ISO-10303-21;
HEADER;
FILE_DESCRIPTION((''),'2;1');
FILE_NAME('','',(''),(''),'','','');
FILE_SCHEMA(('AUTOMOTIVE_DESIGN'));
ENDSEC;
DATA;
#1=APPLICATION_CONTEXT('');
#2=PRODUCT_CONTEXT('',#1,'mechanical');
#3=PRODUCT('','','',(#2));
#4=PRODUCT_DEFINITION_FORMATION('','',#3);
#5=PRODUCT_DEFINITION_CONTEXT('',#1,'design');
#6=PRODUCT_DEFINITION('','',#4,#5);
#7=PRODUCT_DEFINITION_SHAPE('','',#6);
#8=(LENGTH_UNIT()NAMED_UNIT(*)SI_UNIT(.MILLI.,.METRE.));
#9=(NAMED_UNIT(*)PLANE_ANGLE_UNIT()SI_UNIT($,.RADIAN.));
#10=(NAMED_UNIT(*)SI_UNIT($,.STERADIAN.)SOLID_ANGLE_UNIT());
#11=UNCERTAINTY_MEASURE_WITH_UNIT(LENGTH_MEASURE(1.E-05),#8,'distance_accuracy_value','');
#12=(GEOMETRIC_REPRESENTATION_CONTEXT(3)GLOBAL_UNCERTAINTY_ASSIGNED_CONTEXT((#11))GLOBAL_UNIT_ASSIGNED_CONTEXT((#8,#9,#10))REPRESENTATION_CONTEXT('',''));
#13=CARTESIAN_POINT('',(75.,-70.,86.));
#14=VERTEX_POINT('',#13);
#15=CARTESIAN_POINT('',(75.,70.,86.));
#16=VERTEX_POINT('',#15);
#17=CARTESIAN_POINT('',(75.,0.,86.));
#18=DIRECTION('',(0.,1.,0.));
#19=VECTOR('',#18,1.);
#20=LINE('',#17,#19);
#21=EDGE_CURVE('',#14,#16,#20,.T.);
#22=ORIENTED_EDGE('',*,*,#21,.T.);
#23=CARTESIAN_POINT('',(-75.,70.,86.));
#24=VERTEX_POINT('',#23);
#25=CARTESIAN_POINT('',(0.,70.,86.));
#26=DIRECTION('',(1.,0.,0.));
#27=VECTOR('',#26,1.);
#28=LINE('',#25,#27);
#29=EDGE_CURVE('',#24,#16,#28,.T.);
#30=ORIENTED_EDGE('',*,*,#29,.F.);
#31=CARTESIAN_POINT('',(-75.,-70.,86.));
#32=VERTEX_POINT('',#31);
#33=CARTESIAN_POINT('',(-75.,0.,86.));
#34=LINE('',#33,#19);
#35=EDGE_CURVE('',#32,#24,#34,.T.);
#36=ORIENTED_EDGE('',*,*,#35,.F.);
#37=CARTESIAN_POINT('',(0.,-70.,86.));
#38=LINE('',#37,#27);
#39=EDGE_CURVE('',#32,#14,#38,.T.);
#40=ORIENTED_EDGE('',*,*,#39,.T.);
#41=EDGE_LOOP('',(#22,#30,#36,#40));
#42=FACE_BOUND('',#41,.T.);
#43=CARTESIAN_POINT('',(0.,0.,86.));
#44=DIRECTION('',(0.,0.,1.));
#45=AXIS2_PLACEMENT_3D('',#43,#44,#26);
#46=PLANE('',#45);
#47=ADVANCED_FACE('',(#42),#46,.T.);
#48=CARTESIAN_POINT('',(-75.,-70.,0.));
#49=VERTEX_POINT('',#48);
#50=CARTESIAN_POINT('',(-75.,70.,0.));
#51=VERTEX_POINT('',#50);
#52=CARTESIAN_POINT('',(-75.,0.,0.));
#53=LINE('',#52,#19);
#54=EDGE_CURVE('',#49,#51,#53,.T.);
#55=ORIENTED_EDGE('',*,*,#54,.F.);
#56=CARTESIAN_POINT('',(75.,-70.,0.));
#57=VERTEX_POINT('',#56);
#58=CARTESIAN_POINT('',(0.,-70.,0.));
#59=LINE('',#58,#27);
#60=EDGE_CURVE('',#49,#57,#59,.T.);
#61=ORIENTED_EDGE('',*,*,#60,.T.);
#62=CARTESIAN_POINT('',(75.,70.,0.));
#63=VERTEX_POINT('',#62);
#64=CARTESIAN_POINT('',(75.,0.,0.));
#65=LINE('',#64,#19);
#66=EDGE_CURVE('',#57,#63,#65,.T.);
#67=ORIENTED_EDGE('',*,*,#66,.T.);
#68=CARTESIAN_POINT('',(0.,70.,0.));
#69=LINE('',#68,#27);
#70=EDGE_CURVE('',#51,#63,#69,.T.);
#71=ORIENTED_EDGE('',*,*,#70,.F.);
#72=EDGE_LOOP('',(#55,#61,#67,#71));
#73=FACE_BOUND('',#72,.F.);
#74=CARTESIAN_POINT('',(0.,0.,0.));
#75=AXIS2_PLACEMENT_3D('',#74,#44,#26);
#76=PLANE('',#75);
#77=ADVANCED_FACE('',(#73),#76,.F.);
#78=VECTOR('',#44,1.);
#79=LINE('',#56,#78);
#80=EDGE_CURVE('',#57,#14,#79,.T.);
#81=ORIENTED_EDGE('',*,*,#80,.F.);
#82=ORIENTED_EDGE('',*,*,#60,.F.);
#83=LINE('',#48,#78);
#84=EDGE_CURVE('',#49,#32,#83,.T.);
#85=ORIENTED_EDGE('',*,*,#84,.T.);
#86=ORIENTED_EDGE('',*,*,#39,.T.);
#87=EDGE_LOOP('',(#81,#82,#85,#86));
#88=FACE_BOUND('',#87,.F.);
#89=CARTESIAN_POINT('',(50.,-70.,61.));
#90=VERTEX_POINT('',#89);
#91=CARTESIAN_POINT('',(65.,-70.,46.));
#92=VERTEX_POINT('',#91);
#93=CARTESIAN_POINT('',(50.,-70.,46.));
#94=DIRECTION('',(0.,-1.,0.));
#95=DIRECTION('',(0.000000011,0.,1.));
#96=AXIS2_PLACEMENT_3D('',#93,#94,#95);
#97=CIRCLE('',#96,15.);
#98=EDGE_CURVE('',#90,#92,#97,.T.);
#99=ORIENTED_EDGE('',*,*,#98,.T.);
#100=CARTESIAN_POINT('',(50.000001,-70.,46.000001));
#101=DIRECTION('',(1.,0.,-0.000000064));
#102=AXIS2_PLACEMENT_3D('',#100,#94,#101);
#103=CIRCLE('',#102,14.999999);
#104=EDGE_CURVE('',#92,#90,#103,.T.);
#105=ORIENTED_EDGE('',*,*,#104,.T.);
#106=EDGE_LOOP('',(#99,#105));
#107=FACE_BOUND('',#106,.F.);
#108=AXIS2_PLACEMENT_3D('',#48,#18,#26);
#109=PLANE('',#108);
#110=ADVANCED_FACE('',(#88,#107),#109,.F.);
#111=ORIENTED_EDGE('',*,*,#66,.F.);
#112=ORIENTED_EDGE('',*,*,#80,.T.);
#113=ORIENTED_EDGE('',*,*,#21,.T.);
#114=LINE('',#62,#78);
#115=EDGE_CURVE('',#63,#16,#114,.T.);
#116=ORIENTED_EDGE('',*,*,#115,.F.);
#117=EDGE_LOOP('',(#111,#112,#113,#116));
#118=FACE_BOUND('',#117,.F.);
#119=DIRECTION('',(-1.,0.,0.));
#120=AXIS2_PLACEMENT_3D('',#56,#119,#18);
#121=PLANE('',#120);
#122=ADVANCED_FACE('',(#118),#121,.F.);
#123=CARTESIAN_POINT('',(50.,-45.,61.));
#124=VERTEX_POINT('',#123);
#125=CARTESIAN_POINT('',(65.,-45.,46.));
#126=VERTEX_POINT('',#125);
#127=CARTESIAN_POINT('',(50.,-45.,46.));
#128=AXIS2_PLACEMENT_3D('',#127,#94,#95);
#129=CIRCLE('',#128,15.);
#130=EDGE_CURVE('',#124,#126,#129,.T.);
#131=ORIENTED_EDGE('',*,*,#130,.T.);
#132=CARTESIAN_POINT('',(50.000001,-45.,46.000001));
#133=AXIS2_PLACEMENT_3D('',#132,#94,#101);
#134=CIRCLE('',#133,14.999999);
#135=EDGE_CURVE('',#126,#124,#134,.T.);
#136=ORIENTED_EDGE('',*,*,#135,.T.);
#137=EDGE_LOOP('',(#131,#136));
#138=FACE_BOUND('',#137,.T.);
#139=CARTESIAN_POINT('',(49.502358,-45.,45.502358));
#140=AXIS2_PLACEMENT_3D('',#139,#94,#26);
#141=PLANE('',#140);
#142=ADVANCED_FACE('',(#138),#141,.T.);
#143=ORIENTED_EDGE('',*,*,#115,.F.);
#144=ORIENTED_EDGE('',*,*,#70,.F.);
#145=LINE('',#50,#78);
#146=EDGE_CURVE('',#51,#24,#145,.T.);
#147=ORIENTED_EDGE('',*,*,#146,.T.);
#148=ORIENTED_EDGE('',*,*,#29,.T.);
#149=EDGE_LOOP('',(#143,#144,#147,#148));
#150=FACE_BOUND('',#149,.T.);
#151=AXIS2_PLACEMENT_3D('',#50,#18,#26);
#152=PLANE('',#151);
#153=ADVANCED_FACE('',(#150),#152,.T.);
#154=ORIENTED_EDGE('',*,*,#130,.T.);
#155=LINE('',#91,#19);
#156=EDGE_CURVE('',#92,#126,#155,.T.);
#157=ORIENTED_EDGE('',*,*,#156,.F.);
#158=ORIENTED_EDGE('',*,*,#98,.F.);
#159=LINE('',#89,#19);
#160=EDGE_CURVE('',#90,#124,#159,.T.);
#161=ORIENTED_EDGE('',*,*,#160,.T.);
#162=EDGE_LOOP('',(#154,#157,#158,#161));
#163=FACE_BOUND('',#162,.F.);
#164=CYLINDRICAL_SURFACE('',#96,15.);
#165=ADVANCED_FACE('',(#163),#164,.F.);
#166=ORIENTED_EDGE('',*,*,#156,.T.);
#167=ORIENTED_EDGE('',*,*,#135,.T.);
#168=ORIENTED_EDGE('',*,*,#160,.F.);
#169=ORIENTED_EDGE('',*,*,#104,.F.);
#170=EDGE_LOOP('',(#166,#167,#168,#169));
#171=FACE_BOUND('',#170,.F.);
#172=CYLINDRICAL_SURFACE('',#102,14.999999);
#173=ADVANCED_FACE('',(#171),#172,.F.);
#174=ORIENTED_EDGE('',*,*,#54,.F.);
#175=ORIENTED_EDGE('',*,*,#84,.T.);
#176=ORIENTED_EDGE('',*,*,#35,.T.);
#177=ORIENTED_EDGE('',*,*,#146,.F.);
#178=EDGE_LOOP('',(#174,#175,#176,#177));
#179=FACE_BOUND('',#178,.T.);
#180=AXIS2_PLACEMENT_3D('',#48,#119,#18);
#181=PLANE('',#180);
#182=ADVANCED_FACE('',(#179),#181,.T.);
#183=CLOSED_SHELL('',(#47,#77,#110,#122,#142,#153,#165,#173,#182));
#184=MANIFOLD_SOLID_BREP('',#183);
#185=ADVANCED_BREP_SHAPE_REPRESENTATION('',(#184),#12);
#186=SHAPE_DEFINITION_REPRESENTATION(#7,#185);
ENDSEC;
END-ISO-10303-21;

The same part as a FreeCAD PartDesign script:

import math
import FreeCAD as App
import Part
import Sketcher
from FreeCAD import Vector
Q = App.Units.Quantity

doc = App.newDocument("Part")
params = doc.addObject("Spreadsheet::Sheet", "Params")
for row, (alias, value) in enumerate([
    ("sketch1_width", "150 mm"),
    ("sketch1_height", "140 mm"),
    ("pad1_length", "86 mm"),
    ("sketch2_radius", "15 mm"),
    ("pocket1_length", "25 mm"),
], start=1):
    params.set(f"A{row}", alias)
    params.set(f"B{row}", "=" + value)
    params.setAlias(f"B{row}", alias)

body = doc.addObject("PartDesign::Body", "Body")

# Sketch on XY plane
sketch1 = body.newObject("Sketcher::SketchObject", "Sketch")
sketch1.AttachmentSupport = (doc.getObject("XY_Plane"), [""])
sketch1.MapMode = "FlatFace"
sketch1.addGeometry([
    Part.LineSegment(Vector(-75, 70, 0), Vector(-75, -70, 0)),
    Part.LineSegment(Vector(-75, -70, 0), Vector(75, -70, 0)),
    Part.LineSegment(Vector(75, -70, 0), Vector(75, 70, 0)),
    Part.LineSegment(Vector(75, 70, 0), Vector(-75, 70, 0)),
], False)
sketch1.addConstraint([
    Sketcher.Constraint("Coincident", 0, 2, 1, 1),
    Sketcher.Constraint("Coincident", 1, 2, 2, 1),
    Sketcher.Constraint("Coincident", 2, 2, 3, 1),
    Sketcher.Constraint("Coincident", 3, 2, 0, 1),
    Sketcher.Constraint("Vertical", 0),
    Sketcher.Constraint("Horizontal", 1),
    Sketcher.Constraint("Vertical", 2),
    Sketcher.Constraint("Horizontal", 3),
    Sketcher.Constraint("Symmetric", 0, 2, 2, 2, -1, 1),
    Sketcher.Constraint("DistanceX", 1, 1, 1, 2, Q("150 mm")),
    Sketcher.Constraint("DistanceY", 0, 2, 0, 1, Q("140 mm")),
])
sketch1.setExpression("Constraints[9]", "Params.sketch1_width")
sketch1.setExpression("Constraints[10]", "Params.sketch1_height")
pad1 = body.newObject("PartDesign::Pad", "Pad")
pad1.Profile = sketch1
pad1.setExpression("Length", "Params.pad1_length")

# Sketch on XZ plane
sketch2 = body.newObject("Sketcher::SketchObject", "Sketch001")
sketch2.AttachmentSupport = (doc.getObject("XZ_Plane"), [""])
sketch2.MapMode = "FlatFace"
sketch2.AttachmentOffset = App.Placement(Vector(0, 0, 70), App.Rotation())
sketch2.addGeometry([
    Part.ArcOfCircle(Part.Circle(Vector(50, 46, 0), Vector(0, 0, 1), 15), math.radians(89.999999), math.radians(360.000001)),
    Part.ArcOfCircle(Part.Circle(Vector(50.000001, 46.000001, 0), Vector(0, 0, 1), 14.999999), math.radians(-0.000004), math.radians(90.000004)),
], False)
sketch2.addConstraint([
    Sketcher.Constraint("Tangent", 0, 1, 1, 2),
    Sketcher.Constraint("Coincident", 1, 1, 0, 2),
    Sketcher.Constraint("Horizontal", 0, 3, 1, 1),
    Sketcher.Constraint("Vertical", 1, 3, 0, 1),
    Sketcher.Constraint("Radius", 0, Q("15 mm")),
    Sketcher.Constraint("DistanceX", -1, 1, 0, 3, Q("50 mm")),
    Sketcher.Constraint("DistanceY", -1, 1, 0, 3, Q("46 mm")),
])
sketch2.setExpression("Constraints[4]", "Params.sketch2_radius")
pocket1 = body.newObject("PartDesign::Pocket", "Pocket")
pocket1.Profile = sketch2
pocket1.setExpression("Length", "Params.pocket1_length")

doc.recompute()
